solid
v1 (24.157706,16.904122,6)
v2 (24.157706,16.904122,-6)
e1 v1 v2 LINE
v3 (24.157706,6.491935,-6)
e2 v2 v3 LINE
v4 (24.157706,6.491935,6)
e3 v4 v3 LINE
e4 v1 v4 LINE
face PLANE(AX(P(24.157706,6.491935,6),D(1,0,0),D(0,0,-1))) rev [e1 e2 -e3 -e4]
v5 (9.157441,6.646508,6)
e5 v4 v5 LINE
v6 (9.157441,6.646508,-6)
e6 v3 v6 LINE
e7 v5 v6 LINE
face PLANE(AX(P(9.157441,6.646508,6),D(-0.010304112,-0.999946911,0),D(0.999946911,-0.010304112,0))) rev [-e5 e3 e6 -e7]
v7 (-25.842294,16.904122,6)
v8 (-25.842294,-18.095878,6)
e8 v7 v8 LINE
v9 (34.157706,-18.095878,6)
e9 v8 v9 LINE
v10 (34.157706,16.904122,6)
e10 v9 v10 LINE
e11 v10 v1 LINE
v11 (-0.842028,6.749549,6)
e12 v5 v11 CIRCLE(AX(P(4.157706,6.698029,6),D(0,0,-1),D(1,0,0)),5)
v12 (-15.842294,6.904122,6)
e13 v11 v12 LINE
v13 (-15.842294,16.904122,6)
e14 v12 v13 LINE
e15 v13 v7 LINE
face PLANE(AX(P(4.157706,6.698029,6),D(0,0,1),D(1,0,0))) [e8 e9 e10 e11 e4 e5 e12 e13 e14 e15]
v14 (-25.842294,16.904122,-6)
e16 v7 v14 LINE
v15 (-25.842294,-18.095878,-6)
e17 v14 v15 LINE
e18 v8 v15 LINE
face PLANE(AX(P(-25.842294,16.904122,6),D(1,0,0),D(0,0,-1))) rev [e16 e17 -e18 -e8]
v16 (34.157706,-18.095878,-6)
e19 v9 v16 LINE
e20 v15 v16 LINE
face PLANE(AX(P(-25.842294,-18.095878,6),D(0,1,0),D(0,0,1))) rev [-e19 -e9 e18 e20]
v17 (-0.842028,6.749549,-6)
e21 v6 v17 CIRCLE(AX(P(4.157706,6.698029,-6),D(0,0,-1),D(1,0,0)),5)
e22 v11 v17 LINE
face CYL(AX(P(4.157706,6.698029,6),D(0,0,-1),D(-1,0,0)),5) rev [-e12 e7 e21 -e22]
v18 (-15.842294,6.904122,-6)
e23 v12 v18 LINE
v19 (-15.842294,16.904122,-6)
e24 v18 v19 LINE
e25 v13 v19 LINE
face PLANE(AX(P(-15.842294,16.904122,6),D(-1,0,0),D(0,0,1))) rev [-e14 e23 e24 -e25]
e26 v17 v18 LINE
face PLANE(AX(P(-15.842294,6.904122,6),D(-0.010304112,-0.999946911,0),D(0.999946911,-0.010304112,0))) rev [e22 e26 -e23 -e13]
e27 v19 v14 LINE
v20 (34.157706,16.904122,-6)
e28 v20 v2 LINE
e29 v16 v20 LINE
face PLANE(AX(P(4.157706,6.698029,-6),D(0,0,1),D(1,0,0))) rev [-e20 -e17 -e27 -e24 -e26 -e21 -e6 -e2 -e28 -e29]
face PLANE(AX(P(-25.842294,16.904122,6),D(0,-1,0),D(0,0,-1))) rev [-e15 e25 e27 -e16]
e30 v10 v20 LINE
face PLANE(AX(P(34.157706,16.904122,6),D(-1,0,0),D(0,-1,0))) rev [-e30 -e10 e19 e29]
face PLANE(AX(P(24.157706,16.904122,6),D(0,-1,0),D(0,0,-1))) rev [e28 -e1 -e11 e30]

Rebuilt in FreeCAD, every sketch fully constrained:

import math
import FreeCAD as App
import Part
import Sketcher

doc = App.newDocument("Part")
params = doc.addObject("Spreadsheet::Sheet", "Params")
for row, (alias, value) in enumerate([
    ("sketch1_radius", "5 mm"),
    ("sketch1_width", "10 mm"),
    ("sketch1_width2", "60 mm"),
    ("sketch1_height", "35 mm"),
    ("pad1_length", "12 mm"),
], start=1):
    params.set(f"A{row}", alias)
    params.set(f"B{row}", "=" + value)
    params.setAlias(f"B{row}", alias)

body = doc.addObject("PartDesign::Body", "Body")

# Sketch on XY plane
sketch1 = body.newObject("Sketcher::SketchObject", "Sketch")
sketch1.AttachmentSupport = (doc.getObject("XY_Plane"), [""])
sketch1.MapMode = "FlatFace"
sketch1.addGeometry([
    Part.LineSegment(App.Vector(34, 17, 0), App.Vector(24, 17, 0)),  # 0
    Part.LineSegment(App.Vector(24, 17, 0), App.Vector(24, 6, 0)),  # 1
    Part.LineSegment(App.Vector(24, 6, 0), App.Vector(9, 7, 0)),  # 2
    Part.ArcOfCircle(Part.Circle(App.Vector(4, 7, 0), App.Vector(0, 0, 1), 5), math.radians(179), math.radians(359)),  # 3
    Part.LineSegment(App.Vector(-1, 7, 0), App.Vector(-16, 7, 0)),  # 4
    Part.LineSegment(App.Vector(-16, 7, 0), App.Vector(-16, 17, 0)),  # 5
    Part.LineSegment(App.Vector(-16, 17, 0), App.Vector(-26, 17, 0)),  # 6
    Part.LineSegment(App.Vector(-26, 17, 0), App.Vector(-26, -18, 0)),  # 7
    Part.LineSegment(App.Vector(-26, -18, 0), App.Vector(34, -18, 0)),  # 8
    Part.LineSegment(App.Vector(34, -18, 0), App.Vector(34, 17, 0)),  # 9
], False)
sketch1.addConstraint([
    Sketcher.Constraint("Coincident", 0, 2, 1, 1),
    Sketcher.Constraint("Coincident", 1, 2, 2, 1),
    Sketcher.Constraint("Coincident", 2, 2, 3, 2),
    Sketcher.Constraint("Coincident", 3, 1, 4, 1),
    Sketcher.Constraint("Coincident", 4, 2, 5, 1),
    Sketcher.Constraint("Coincident", 5, 2, 6, 1),
    Sketcher.Constraint("Coincident", 6, 2, 7, 1),
    Sketcher.Constraint("Coincident", 7, 2, 8, 1),
    Sketcher.Constraint("Coincident", 8, 2, 9, 1),
    Sketcher.Constraint("Coincident", 9, 2, 0, 1),
    Sketcher.Constraint("Horizontal", 0),
    Sketcher.Constraint("Vertical", 1),
    Sketcher.Constraint("Vertical", 5),
    Sketcher.Constraint("Horizontal", 6),
    Sketcher.Constraint("Vertical", 7),
    Sketcher.Constraint("Horizontal", 8),
    Sketcher.Constraint("Vertical", 9),
    Sketcher.Constraint("Parallel", 2, 4),
    Sketcher.Constraint("Horizontal", 0, 2, 5, 2),
    Sketcher.Constraint("Equal", 0, 6),
    Sketcher.Constraint("Equal", 6, 5),
    Sketcher.Constraint("Equal", 2, 4),
    Sketcher.Constraint("Radius", 3, 5.0),
    Sketcher.Constraint("DistanceX", 0, 2, 0, 1, 10.0),
    Sketcher.Constraint("DistanceX", 8, 1, 8, 2, 60.0),
    Sketcher.Constraint("DistanceY", 7, 2, 7, 1, 35.0),
    Sketcher.Constraint("DistanceX", 3, 3, 0, 2, 20.0),
    Sketcher.Constraint("Distance", 2, 15.001062),
    Sketcher.Constraint("DistanceY", -1, 1, 3, 3, 6.698029),
    Sketcher.Constraint("DistanceX", -1, 1, 2, 2, 9.157441),
    Sketcher.Constraint("DistanceY", -1, 1, 2, 2, 6.646508),
])
sketch1.setExpression("Constraints[22]", "Params.sketch1_radius")
sketch1.setExpression("Constraints[23]", "Params.sketch1_width")
sketch1.setExpression("Constraints[24]", "Params.sketch1_width2")
sketch1.setExpression("Constraints[25]", "Params.sketch1_height")
pad1 = body.newObject("PartDesign::Pad", "Pad")
pad1.Profile = sketch1
pad1.setExpression("Length", "Params.pad1_length")
pad1.Midplane = True

doc.recompute()
